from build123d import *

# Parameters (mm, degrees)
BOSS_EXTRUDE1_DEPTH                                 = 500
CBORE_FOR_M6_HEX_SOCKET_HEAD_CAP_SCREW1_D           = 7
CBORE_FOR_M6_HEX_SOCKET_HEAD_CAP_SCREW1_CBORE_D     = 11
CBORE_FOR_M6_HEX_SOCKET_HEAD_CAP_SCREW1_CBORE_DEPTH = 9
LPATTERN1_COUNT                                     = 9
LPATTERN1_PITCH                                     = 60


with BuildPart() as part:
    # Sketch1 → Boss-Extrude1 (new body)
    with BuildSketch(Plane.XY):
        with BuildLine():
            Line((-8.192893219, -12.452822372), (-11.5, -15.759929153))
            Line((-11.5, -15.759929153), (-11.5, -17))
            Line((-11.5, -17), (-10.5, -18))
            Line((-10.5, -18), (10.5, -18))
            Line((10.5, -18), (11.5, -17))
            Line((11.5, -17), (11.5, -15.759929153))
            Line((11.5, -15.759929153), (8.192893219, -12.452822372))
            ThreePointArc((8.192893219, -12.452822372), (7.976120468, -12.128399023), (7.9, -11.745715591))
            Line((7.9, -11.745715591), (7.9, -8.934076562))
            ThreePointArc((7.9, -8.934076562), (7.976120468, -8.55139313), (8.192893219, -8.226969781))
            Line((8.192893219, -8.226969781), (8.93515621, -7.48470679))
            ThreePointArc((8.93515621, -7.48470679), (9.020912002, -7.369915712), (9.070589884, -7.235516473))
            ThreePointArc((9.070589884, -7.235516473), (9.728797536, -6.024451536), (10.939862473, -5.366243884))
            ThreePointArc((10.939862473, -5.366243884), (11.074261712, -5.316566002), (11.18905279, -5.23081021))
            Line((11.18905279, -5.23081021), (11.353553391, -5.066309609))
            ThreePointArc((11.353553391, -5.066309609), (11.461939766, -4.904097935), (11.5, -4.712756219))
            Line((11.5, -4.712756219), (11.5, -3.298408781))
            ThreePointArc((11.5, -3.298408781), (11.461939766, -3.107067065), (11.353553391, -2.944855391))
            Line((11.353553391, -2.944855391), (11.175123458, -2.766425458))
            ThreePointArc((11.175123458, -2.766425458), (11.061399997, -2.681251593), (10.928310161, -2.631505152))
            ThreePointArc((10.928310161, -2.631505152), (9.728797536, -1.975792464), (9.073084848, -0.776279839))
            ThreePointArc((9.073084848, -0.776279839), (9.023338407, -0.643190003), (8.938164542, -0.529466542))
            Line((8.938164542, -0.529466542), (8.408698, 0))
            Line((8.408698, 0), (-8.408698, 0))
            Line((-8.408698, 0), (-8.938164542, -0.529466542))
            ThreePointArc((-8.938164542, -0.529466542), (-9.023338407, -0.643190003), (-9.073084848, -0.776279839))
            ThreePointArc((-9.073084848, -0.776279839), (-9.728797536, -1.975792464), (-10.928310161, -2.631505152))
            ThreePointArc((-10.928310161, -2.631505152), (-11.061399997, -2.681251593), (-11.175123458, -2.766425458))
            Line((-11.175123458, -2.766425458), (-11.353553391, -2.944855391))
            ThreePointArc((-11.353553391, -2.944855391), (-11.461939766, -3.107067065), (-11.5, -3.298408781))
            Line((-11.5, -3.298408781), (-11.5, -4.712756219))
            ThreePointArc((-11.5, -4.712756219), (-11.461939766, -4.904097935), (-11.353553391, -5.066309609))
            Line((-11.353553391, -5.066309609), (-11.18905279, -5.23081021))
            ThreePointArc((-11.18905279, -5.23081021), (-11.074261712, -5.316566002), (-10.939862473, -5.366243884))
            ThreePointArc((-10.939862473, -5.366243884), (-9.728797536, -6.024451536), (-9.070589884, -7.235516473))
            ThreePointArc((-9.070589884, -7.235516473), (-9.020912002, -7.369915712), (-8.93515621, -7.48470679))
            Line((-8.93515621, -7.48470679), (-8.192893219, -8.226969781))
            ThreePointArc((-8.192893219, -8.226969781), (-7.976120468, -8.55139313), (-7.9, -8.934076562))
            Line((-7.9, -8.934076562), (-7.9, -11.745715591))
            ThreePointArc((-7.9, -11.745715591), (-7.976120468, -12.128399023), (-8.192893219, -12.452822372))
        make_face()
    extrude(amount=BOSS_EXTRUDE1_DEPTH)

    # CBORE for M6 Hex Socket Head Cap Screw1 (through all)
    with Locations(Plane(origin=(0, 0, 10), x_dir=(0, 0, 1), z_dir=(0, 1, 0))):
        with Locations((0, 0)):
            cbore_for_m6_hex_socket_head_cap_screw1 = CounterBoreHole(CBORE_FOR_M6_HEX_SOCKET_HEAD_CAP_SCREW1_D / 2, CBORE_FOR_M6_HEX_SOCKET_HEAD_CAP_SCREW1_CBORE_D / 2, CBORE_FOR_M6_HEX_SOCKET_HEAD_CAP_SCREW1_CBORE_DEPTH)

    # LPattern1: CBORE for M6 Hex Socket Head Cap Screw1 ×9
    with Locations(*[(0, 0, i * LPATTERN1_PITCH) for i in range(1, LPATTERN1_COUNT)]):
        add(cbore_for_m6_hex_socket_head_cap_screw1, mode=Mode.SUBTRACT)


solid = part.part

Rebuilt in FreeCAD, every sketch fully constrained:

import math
import FreeCAD as App
import Part
import Sketcher

V = App.Vector
Q = App.Units.Quantity

doc = App.newDocument("Part")
body = doc.addObject("PartDesign::Body", "Body")

# Sketch on XY plane
sketch1 = body.newObject("Sketcher::SketchObject", "Sketch")
sketch1.AttachmentSupport = (doc.getObject("XY_Plane"), [""])
sketch1.MapMode = "FlatFace"
sketch1.addGeometry([
    Part.LineSegment(V(-8.19, -12.45, 0), V(-11.5, -15.76, 0)),  # 0
    Part.LineSegment(V(-11.5, -15.76, 0), V(-11.5, -17, 0)),  # 1
    Part.LineSegment(V(-11.5, -17, 0), V(-10.5, -18, 0)),  # 2
    Part.LineSegment(V(-10.5, -18, 0), V(10.5, -18, 0)),  # 3
    Part.LineSegment(V(10.5, -18, 0), V(11.5, -17, 0)),  # 4
    Part.LineSegment(V(11.5, -17, 0), V(11.5, -15.76, 0)),  # 5
    Part.LineSegment(V(11.5, -15.76, 0), V(8.19, -12.45, 0)),  # 6
    Part.ArcOfCircle(Part.Circle(V(8.9, -11.75, 0), V(0, 0, 1), 1), math.radians(-180), math.radians(-135)),  # 7
    Part.LineSegment(V(7.9, -11.75, 0), V(7.9, -8.93, 0)),  # 8
    Part.ArcOfCircle(Part.Circle(V(8.9, -8.93, 0), V(0, 0, 1), 1), math.radians(135), math.radians(180)),  # 9
    Part.LineSegment(V(8.19, -8.23, 0), V(8.94, -7.48, 0)),  # 10
    Part.ArcOfCircle(Part.Circle(V(8.58, -7.13, 0), V(0, 0, 1), 0.5), math.radians(-45), math.radians(-12)),  # 11
    Part.ArcOfCircle(Part.Circle(V(11.45, -7.74, 0), V(0, 0, 1), 2.43), math.radians(102), math.radians(168)),  # 12
    Part.ArcOfCircle(Part.Circle(V(10.84, -4.88, 0), V(0, 0, 1), 0.5), math.radians(-78), math.radians(-45)),  # 13
    Part.LineSegment(V(11.19, -5.23, 0), V(11.35, -5.07, 0)),  # 14
    Part.ArcOfCircle(Part.Circle(V(11, -4.71, 0), V(0, 0, 1), 0.5), math.radians(-45), math.radians(0)),  # 15
    Part.LineSegment(V(11.5, -4.71, 0), V(11.5, -3.3, 0)),  # 16
    Part.ArcOfCircle(Part.Circle(V(11, -3.3, 0), V(0, 0, 1), 0.5), math.radians(0), math.radians(45)),  # 17
    Part.LineSegment(V(11.35, -2.94, 0), V(11.18, -2.77, 0)),  # 18
    Part.ArcOfCircle(Part.Circle(V(10.82, -3.12, 0), V(0, 0, 1), 0.5), math.radians(45), math.radians(78)),  # 19
    Part.ArcOfCircle(Part.Circle(V(11.45, -0.26, 0), V(0, 0, 1), 2.43), math.radians(-168), math.radians(-102)),  # 20
    Part.ArcOfCircle(Part.Circle(V(8.58, -0.88, 0), V(0, 0, 1), 0.5), math.radians(12), math.radians(45)),  # 21
    Part.LineSegment(V(8.94, -0.53, 0), V(8.41, 0, 0)),  # 22
    Part.LineSegment(V(8.41, 0, 0), V(-8.41, 0, 0)),  # 23
    Part.LineSegment(V(-8.41, 0, 0), V(-8.94, -0.53, 0)),  # 24
    Part.ArcOfCircle(Part.Circle(V(-8.58, -0.88, 0), V(0, 0, 1), 0.5), math.radians(135), math.radians(168)),  # 25
    Part.ArcOfCircle(Part.Circle(V(-11.45, -0.26, 0), V(0, 0, 1), 2.43), math.radians(-78), math.radians(-12)),  # 26
    Part.ArcOfCircle(Part.Circle(V(-10.82, -3.12, 0), V(0, 0, 1), 0.5), math.radians(102), math.radians(135)),  # 27
    Part.LineSegment(V(-11.18, -2.77, 0), V(-11.35, -2.94, 0)),  # 28
    Part.ArcOfCircle(Part.Circle(V(-11, -3.3, 0), V(0, 0, 1), 0.5), math.radians(135), math.radians(180)),  # 29
    Part.LineSegment(V(-11.5, -3.3, 0), V(-11.5, -4.71, 0)),  # 30
    Part.ArcOfCircle(Part.Circle(V(-11, -4.71, 0), V(0, 0, 1), 0.5), math.radians(-180), math.radians(-135)),  # 31
    Part.LineSegment(V(-11.35, -5.07, 0), V(-11.19, -5.23, 0)),  # 32
    Part.ArcOfCircle(Part.Circle(V(-10.84, -4.88, 0), V(0, 0, 1), 0.5), math.radians(-135), math.radians(-102)),  # 33
    Part.ArcOfCircle(Part.Circle(V(-11.45, -7.74, 0), V(0, 0, 1), 2.43), math.radians(12), math.radians(78)),  # 34
    Part.ArcOfCircle(Part.Circle(V(-8.58, -7.13, 0), V(0, 0, 1), 0.5), math.radians(-168), math.radians(-135)),  # 35
    Part.LineSegment(V(-8.94, -7.48, 0), V(-8.19, -8.23, 0)),  # 36
    Part.ArcOfCircle(Part.Circle(V(-8.9, -8.93, 0), V(0, 0, 1), 1), math.radians(0), math.radians(45)),  # 37
    Part.LineSegment(V(-7.9, -8.93, 0), V(-7.9, -11.75, 0)),  # 38
    Part.ArcOfCircle(Part.Circle(V(-8.9, -11.75, 0), V(0, 0, 1), 1), math.radians(-45), math.radians(0)),  # 39
], False)
sketch1.addConstraint([
    Sketcher.Constraint("Coincident", 0, 2, 1, 1),
    Sketcher.Constraint("Coincident", 1, 2, 2, 1),
    Sketcher.Constraint("Coincident", 2, 2, 3, 1),
    Sketcher.Constraint("Coincident", 3, 2, 4, 1),
    Sketcher.Constraint("Coincident", 4, 2, 5, 1),
    Sketcher.Constraint("Coincident", 5, 2, 6, 1),
    Sketcher.Constraint("Tangent", 6, 2, 7, 2),
    Sketcher.Constraint("Tangent", 7, 1, 8, 1),
    Sketcher.Constraint("Tangent", 8, 2, 9, 2),
    Sketcher.Constraint("Tangent", 9, 1, 10, 1),
    Sketcher.Constraint("Tangent", 10, 2, 11, 1),
    Sketcher.Constraint("Tangent", 11, 2, 12, 2),
    Sketcher.Constraint("Tangent", 12, 1, 13, 1),
    Sketcher.Constraint("Tangent", 13, 2, 14, 1),
    Sketcher.Constraint("Tangent", 14, 2, 15, 1),
    Sketcher.Constraint("Tangent", 15, 2, 16, 1),
    Sketcher.Constraint("Tangent", 16, 2, 17, 1),
    Sketcher.Constraint("Tangent", 17, 2, 18, 1),
    Sketcher.Constraint("Tangent", 18, 2, 19, 1),
    Sketcher.Constraint("Tangent", 19, 2, 20, 2),
    Sketcher.Constraint("Tangent", 20, 1, 21, 1),
    Sketcher.Constraint("Tangent", 21, 2, 22, 1),
    Sketcher.Constraint("Coincident", 22, 2, 23, 1),
    Sketcher.Constraint("Coincident", 23, 2, 24, 1),
    Sketcher.Constraint("Tangent", 24, 2, 25, 1),
    Sketcher.Constraint("Tangent", 25, 2, 26, 2),
    Sketcher.Constraint("Tangent", 26, 1, 27, 1),
    Sketcher.Constraint("Tangent", 27, 2, 28, 1),
    Sketcher.Constraint("Tangent", 28, 2, 29, 1),
    Sketcher.Constraint("Tangent", 29, 2, 30, 1),
    Sketcher.Constraint("Tangent", 30, 2, 31, 1),
    Sketcher.Constraint("Tangent", 31, 2, 32, 1),
    Sketcher.Constraint("Tangent", 32, 2, 33, 1),
    Sketcher.Constraint("Tangent", 33, 2, 34, 2),
    Sketcher.Constraint("Tangent", 34, 1, 35, 1),
    Sketcher.Constraint("Tangent", 35, 2, 36, 1),
    Sketcher.Constraint("Tangent", 36, 2, 37, 2),
    Sketcher.Constraint("Tangent", 37, 1, 38, 1),
    Sketcher.Constraint("Tangent", 38, 2, 39, 2),
    Sketcher.Constraint("Tangent", 39, 1, 0, 1),
    Sketcher.Constraint("Vertical", 1),
    Sketcher.Constraint("Horizontal", 3),
    Sketcher.Constraint("Vertical", 5),
    Sketcher.Constraint("Vertical", 8),
    Sketcher.Constraint("Vertical", 16),
    Sketcher.Constraint("Horizontal", 23),
    Sketcher.Constraint("Vertical", 30),
    Sketcher.Constraint("Vertical", 38),
    Sketcher.Constraint("Equal", 7, 9),
    Sketcher.Constraint("Equal", 11, 13),
    Sketcher.Constraint("Equal", 13, 15),
    Sketcher.Constraint("Equal", 15, 17),
    Sketcher.Constraint("Equal", 17, 19),
    Sketcher.Constraint("Equal", 12, 20),
    Sketcher.Constraint("Equal", 19, 21),
    Sketcher.Constraint("Equal", 21, 25),
    Sketcher.Constraint("Equal", 20, 26),
    Sketcher.Constraint("Equal", 25, 27),
    Sketcher.Constraint("Equal", 27, 29),
    Sketcher.Constraint("Equal", 29, 31),
    Sketcher.Constraint("Equal", 31, 33),
    Sketcher.Constraint("Equal", 26, 34),
    Sketcher.Constraint("Equal", 33, 35),
    Sketcher.Constraint("Equal", 9, 37),
    Sketcher.Constraint("Equal", 37, 39),
    Sketcher.Constraint("Symmetric", 22, 2, 23, 2, -1, 1),
    Sketcher.Constraint("Symmetric", 21, 3, 25, 3, -2),
    Sketcher.Constraint("Symmetric", 19, 3, 27, 3, -2),
    Sketcher.Constraint("Symmetric", 17, 3, 29, 3, -2),
    Sketcher.Constraint("Symmetric", 13, 3, 33, 3, -2),
    Sketcher.Constraint("Symmetric", 11, 3, 35, 3, -2),
    Sketcher.Constraint("Symmetric", 9, 3, 37, 3, -2),
    Sketcher.Constraint("Symmetric", 1, 2, 4, 2, -2),
    Sketcher.Constraint("Symmetric", 6, 2, 39, 1, -2),
    Sketcher.Constraint("Perpendicular", 0, 2),
    Sketcher.Constraint("Perpendicular", 2, 4),
    Sketcher.Constraint("Perpendicular", 4, 6),
    Sketcher.Constraint("Perpendicular", 6, 10),
    Sketcher.Constraint("Parallel", 10, 14),
    Sketcher.Constraint("Perpendicular", 14, 18),
    Sketcher.Constraint("Parallel", 18, 22),
    Sketcher.Constraint("Perpendicular", 28, 32),
    Sketcher.Constraint("Vertical", 12, 3, 20, 3),
    Sketcher.Constraint("Vertical", 5, 2, 15, 2),
    Sketcher.Constraint("Radius", 7, Q("1 mm")),
    Sketcher.Constraint("Radius", 11, Q("0.5 mm")),
    Sketcher.Constraint("DistanceX", 3, 1, 3, 2, Q("21 mm")),
    Sketcher.Constraint("Radius", 12, Q("2.43 mm")),
    Sketcher.Constraint("DistanceX", -1, 1, 15, 3, Q("11 mm")),
    Sketcher.Constraint("DistanceY", 1, 2, -1, 1, Q("17 mm")),
    Sketcher.Constraint("DistanceX", -1, 1, 7, 3, Q("8.9 mm")),
    Sketcher.Constraint("DistanceY", 1, 2, 1, 1, Q("1.240071 mm")),
    Sketcher.Constraint("DistanceY", 8, 1, 8, 2, Q("2.811639 mm")),
    Sketcher.Constraint("DistanceX", -1, 1, 13, 3, Q("10.835499 mm")),
    Sketcher.Constraint("DistanceY", 34, 3, 25, 3, Q("6.859701 mm")),
    Sketcher.Constraint("DistanceY", 13, 2, 17, 3, Q("1.932401 mm")),
    Sketcher.Constraint("DistanceY", 19, 3, 20, 1, Q("2.343699 mm")),
    Sketcher.Constraint("DistanceX", 29, 3, 23, 2, Q("2.591302 mm")),
    Sketcher.Constraint("Distance", 10, Q("1.049718 mm")),
])
pad1 = body.newObject("PartDesign::Pad", "Pad")
pad1.Profile = sketch1
pad1.Length = 500

# Sketch on XZ plane
sketch2 = body.newObject("Sketcher::SketchObject", "Sketch001")
sketch2.AttachmentSupport = (doc.getObject("XZ_Plane"), [""])
sketch2.MapMode = "FlatFace"
sketch2.addGeometry(Part.Circle(V(0, 10, 0), V(0, 0, 1), 3.5), False)
sketch2.addConstraint([
    Sketcher.Constraint("PointOnObject", 0, 3, -2),
    Sketcher.Constraint("Diameter", 0, Q("7 mm")),
    Sketcher.Constraint("DistanceY", -1, 1, 0, 3, Q("10 mm")),
])
doc.recompute()
hole = body.newObject("PartDesign::Hole", "Hole")
hole.Profile = sketch2
hole.ThreadType = "None"
hole.Diameter = 7
hole.DepthType = "ThroughAll"
hole.HoleCutType = "Counterbore"
hole.HoleCutDiameter = 11
hole.HoleCutDepth = 9
hole.Reversed = True
doc.recompute()

linearpattern = body.newObject("PartDesign::LinearPattern", "LinearPattern")
linearpattern.Originals = [hole]
linearpattern.Direction = (doc.getObject("Z_Axis"), [""])
linearpattern.Mode = "offset"
linearpattern.Offset = 60
linearpattern.Occurrences = 9
body.Tip = linearpattern

doc.recompute()
